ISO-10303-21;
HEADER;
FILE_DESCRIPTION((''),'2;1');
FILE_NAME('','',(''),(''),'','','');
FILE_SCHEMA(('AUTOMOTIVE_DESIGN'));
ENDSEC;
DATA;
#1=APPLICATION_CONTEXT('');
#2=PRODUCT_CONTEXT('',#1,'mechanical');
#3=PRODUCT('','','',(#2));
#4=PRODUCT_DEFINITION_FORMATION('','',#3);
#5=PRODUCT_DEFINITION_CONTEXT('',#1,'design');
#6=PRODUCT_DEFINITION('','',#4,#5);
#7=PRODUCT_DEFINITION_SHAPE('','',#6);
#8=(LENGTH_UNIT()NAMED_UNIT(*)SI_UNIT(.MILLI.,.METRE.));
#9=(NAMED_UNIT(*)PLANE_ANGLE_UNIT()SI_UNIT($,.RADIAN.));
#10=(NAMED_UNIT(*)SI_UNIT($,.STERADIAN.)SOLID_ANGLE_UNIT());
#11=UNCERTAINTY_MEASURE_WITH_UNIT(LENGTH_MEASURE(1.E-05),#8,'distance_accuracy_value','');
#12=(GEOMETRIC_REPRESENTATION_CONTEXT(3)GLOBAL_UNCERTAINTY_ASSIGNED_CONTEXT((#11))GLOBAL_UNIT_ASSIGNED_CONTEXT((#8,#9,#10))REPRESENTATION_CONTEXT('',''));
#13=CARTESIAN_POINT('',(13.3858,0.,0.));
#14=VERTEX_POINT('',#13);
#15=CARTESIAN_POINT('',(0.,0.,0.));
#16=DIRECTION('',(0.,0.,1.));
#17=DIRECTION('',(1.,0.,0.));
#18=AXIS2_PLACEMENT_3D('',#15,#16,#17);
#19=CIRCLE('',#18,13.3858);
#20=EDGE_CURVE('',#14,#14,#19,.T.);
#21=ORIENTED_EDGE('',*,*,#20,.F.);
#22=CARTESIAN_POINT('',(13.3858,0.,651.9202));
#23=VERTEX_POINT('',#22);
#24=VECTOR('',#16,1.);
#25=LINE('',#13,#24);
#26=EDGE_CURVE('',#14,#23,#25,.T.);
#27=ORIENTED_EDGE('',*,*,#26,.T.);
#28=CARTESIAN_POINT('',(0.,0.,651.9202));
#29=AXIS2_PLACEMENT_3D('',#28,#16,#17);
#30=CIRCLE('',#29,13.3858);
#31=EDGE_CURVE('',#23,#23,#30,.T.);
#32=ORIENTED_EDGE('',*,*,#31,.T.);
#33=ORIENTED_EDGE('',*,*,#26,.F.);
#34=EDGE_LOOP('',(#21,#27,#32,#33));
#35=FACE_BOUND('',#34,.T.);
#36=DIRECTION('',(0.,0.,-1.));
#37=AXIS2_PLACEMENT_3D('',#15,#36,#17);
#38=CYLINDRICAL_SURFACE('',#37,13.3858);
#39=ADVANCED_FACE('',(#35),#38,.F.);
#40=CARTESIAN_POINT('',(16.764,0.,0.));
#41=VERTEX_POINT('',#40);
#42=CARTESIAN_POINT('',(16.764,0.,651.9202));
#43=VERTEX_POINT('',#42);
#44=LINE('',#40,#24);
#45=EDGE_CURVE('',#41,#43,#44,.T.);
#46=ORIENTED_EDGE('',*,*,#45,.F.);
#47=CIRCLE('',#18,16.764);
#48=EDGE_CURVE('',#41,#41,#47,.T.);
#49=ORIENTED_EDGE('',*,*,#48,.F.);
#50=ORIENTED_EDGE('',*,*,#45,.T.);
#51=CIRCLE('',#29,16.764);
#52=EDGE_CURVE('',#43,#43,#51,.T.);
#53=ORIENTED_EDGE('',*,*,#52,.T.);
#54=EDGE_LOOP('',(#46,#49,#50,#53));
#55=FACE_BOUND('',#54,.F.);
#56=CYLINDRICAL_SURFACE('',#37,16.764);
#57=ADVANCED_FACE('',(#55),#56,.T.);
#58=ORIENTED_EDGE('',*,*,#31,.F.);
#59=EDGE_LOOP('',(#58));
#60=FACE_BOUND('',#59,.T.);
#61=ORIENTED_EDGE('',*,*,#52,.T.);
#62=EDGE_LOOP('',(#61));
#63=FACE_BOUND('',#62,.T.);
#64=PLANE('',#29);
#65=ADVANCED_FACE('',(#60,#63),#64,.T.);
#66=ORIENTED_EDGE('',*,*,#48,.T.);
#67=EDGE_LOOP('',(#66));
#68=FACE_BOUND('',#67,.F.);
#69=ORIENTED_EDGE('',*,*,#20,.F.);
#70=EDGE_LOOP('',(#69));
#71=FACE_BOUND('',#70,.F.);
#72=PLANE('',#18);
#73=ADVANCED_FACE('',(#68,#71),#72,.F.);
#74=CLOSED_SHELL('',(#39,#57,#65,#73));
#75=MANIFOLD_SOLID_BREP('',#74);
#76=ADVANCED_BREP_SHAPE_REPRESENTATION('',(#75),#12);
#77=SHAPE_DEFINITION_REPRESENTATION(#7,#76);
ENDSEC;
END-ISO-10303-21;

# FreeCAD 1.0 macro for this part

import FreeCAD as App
import Part
import Sketcher
from FreeCAD import Vector
Q = App.Units.Quantity

doc = App.newDocument("Part")
body = doc.addObject("PartDesign::Body", "Body")

# Sketch on XY plane
sketch1 = body.newObject("Sketcher::SketchObject", "Sketch")
sketch1.AttachmentSupport = (doc.getObject("XY_Plane"), [""])
sketch1.MapMode = "FlatFace"
sketch1.addGeometry([
    Part.Circle(Vector(0, 0, 0), Vector(0, 0, 1), 17),
    Part.Circle(Vector(0, 0, 0), Vector(0, 0, 1), 13),
], False)
sketch1.addConstraint([
    Sketcher.Constraint("Coincident", 0, 3, -1, 1),
    Sketcher.Constraint("Coincident", 1, 3, -1, 1),
    Sketcher.Constraint("Diameter", 0, Q("1.32 in")),
    Sketcher.Constraint("Diameter", 1, Q("1.054 in")),
])
pad1 = body.newObject("PartDesign::Pad", "Pad")
pad1.Profile = sketch1
pad1.Length = 651.9202

doc.recompute()
